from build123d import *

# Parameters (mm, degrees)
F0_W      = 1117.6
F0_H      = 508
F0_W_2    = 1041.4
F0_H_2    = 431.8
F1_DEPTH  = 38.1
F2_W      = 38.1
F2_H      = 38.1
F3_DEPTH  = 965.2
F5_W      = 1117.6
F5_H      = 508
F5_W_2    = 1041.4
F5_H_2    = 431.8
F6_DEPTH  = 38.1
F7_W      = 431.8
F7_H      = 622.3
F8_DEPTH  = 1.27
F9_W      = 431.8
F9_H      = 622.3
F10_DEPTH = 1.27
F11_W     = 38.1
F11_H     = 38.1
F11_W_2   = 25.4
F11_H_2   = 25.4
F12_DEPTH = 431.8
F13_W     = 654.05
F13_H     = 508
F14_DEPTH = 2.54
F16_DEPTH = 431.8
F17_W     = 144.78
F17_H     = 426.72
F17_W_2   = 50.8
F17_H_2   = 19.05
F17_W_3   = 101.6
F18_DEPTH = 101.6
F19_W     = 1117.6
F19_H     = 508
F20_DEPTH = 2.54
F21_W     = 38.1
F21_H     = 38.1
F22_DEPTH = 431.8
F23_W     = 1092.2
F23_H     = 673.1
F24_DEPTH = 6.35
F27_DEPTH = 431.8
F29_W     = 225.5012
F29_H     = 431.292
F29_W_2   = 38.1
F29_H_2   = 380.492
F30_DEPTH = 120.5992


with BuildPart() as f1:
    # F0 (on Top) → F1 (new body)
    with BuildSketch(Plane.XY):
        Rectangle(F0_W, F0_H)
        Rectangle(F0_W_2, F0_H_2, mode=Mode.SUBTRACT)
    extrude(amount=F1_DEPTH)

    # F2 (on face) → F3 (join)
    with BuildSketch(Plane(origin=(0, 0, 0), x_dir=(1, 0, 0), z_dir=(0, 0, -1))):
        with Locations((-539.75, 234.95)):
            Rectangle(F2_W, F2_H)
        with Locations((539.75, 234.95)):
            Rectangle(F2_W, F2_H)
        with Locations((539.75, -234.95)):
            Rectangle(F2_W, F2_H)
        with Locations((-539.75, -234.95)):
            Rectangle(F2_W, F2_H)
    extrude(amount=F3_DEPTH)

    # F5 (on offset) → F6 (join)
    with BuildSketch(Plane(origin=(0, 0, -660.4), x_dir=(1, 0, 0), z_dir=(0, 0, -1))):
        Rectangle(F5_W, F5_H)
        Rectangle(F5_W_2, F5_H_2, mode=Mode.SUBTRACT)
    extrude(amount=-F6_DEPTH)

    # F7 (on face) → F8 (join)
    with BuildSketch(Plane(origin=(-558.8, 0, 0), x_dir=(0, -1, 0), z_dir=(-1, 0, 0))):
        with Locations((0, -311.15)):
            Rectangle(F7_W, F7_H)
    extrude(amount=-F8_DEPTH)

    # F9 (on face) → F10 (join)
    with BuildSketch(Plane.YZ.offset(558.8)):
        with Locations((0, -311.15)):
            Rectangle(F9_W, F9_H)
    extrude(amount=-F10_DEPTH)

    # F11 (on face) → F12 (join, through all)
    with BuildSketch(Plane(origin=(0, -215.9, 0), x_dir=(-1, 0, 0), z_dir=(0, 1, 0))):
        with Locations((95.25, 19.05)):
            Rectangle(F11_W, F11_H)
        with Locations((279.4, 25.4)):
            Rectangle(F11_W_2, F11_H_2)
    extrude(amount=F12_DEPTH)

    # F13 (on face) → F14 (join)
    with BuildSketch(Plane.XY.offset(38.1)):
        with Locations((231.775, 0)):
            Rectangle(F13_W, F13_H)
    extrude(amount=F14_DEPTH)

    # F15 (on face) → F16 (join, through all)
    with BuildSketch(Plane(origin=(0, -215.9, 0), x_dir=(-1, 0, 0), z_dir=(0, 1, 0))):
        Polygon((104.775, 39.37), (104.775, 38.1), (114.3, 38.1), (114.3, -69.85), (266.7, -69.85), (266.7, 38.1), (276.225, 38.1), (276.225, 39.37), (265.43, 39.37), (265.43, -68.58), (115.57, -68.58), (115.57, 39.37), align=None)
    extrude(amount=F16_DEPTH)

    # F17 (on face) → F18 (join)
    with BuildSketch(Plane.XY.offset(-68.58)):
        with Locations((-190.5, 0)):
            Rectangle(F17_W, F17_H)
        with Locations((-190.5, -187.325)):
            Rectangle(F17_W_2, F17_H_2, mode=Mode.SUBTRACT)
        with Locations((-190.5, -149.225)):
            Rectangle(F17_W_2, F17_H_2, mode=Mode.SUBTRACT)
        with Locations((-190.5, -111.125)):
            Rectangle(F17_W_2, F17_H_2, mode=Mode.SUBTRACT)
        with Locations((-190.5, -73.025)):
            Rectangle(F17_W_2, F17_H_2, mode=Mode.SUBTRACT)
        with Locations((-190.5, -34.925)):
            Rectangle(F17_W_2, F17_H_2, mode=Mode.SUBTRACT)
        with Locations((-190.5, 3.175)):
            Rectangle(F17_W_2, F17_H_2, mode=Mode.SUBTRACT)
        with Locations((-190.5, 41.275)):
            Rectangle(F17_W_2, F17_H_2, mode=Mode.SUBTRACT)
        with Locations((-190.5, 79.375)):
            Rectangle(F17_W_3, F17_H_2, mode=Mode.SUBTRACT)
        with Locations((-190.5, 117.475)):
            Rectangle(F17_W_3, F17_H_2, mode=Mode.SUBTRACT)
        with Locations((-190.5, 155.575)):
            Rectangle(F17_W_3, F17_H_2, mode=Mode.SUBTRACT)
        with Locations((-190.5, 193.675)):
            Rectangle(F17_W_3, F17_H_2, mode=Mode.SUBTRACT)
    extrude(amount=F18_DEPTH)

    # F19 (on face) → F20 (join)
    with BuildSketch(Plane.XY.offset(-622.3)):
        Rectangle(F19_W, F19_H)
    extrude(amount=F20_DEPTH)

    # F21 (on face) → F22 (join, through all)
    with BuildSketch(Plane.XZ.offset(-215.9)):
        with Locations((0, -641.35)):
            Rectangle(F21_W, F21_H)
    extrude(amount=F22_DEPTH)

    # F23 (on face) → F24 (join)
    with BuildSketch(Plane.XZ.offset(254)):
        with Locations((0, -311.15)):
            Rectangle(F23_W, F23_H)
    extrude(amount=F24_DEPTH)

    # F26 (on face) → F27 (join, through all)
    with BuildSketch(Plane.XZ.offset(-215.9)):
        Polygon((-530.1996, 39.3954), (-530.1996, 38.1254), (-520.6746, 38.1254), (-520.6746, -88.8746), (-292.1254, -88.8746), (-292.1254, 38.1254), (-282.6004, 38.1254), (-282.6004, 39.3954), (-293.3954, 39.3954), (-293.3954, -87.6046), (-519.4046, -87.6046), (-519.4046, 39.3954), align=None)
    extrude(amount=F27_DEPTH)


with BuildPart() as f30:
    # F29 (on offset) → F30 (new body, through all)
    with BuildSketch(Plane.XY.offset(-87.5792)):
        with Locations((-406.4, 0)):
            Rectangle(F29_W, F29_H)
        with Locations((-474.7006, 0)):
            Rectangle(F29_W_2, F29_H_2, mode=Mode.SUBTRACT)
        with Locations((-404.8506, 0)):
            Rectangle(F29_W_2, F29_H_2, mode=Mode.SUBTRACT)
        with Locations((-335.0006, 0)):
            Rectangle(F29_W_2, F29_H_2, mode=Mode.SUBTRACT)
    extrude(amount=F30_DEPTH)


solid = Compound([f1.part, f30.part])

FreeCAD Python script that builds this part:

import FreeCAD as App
import Part
import Sketcher

V = App.Vector
Q = App.Units.Quantity


def add_polygon(sketch, points):
    """Adds a closed chain of lines whose ends are joined by coincident constraints."""
    first, n = sketch.GeometryCount, len(points)
    for a, b in zip(points, points[1:] + points[:1]):
        sketch.addGeometry(Part.LineSegment(App.Vector(*a, 0), App.Vector(*b, 0)), False)
    for i in range(n):
        sketch.addConstraint(Sketcher.Constraint("Coincident", first + i, 2, first + (i + 1) % n, 1))

doc = App.newDocument("Part")
body = doc.addObject("PartDesign::Body", "Body")

sketch1 = doc.addObject("Sketcher::SketchObject", "Sketch")
body.addObject(sketch1)
sketch1.AttachmentSupport = (doc.XY_Plane, [""])
sketch1.MapMode = "FlatFace"
add_polygon(sketch1, [(-559, 254), (-559, -254), (559, -254), (559, 254)])
add_polygon(sketch1, [(521, -216), (-521, -216), (-521, 216), (521, 216)])
sketch1.addConstraint([
    Sketcher.Constraint("Vertical", 0),
    Sketcher.Constraint("Horizontal", 1),
    Sketcher.Constraint("Vertical", 2),
    Sketcher.Constraint("Horizontal", 3),
    Sketcher.Constraint("Horizontal", 4),
    Sketcher.Constraint("Vertical", 5),
    Sketcher.Constraint("Horizontal", 6),
    Sketcher.Constraint("Vertical", 7),
    Sketcher.Constraint("Symmetric", 0, 2, 2, 2, -1, 1),
    Sketcher.Constraint("Symmetric", 4, 2, 6, 2, -1, 1),
    Sketcher.Constraint("DistanceX", 1, 1, 1, 2, Q("44 in")),
    Sketcher.Constraint("DistanceX", 4, 2, 4, 1, Q("41 in")),
    Sketcher.Constraint("DistanceY", 0, 2, 0, 1, Q("20 in")),
    Sketcher.Constraint("DistanceY", 5, 1, 5, 2, Q("17 in")),
])
pad1 = doc.addObject("PartDesign::Pad", "Pad")
body.addObject(pad1)
pad1.Profile = sketch1
pad1.Length = Q("1.5 in")

sketch2 = doc.addObject("Sketcher::SketchObject", "Sketch001")
body.addObject(sketch2)
sketch2.AttachmentSupport = (doc.XY_Plane, [""])
sketch2.MapMode = "FlatFace"
add_polygon(sketch2, [(-559, -254), (-559, -216), (-521, -216), (-521, -254)])
add_polygon(sketch2, [(521, -254), (521, -216), (559, -216), (559, -254)])
add_polygon(sketch2, [(521, 216), (521, 254), (559, 254), (559, 216)])
add_polygon(sketch2, [(-559, 216), (-559, 254), (-521, 254), (-521, 216)])
sketch2.addConstraint([
    Sketcher.Constraint("Vertical", 0),
    Sketcher.Constraint("Horizontal", 1),
    Sketcher.Constraint("Vertical", 2),
    Sketcher.Constraint("Horizontal", 3),
    Sketcher.Constraint("Vertical", 4),
    Sketcher.Constraint("Horizontal", 5),
    Sketcher.Constraint("Vertical", 6),
    Sketcher.Constraint("Horizontal", 7),
    Sketcher.Constraint("Vertical", 8),
    Sketcher.Constraint("Horizontal", 9),
    Sketcher.Constraint("Vertical", 10),
    Sketcher.Constraint("Horizontal", 11),
    Sketcher.Constraint("Vertical", 12),
    Sketcher.Constraint("Horizontal", 13),
    Sketcher.Constraint("Vertical", 14),
    Sketcher.Constraint("Horizontal", 15),
    Sketcher.Constraint("Symmetric", 2, 2, 8, 2, -1, 1),
    Sketcher.Constraint("Symmetric", 0, 2, 10, 2, -1, 1),
    Sketcher.Constraint("Symmetric", 6, 2, 12, 2, -1, 1),
    Sketcher.Constraint("Symmetric", 4, 2, 14, 2, -1, 1),
    Sketcher.Constraint("Symmetric", 1, 2, 4, 2, -2),
    Sketcher.Constraint("Symmetric", 3, 2, 6, 2, -2),
    Sketcher.Constraint("Equal", 15, 0),
    Sketcher.Constraint("DistanceX", 1, 1, 1, 2, Q("1.5 in")),
    Sketcher.Constraint("DistanceX", 0, 2, -1, 1, Q("22 in")),
    Sketcher.Constraint("DistanceY", 2, 2, -1, 1, Q("10 in")),
])
pad2 = doc.addObject("PartDesign::Pad", "Pad001")
body.addObject(pad2)
pad2.Profile = sketch2
pad2.Length = Q("38 in")
pad2.Reversed = True

sketch3 = doc.addObject("Sketcher::SketchObject", "Sketch002")
body.addObject(sketch3)
sketch3.AttachmentSupport = (doc.XY_Plane, [""])
sketch3.MapMode = "FlatFace"
sketch3.AttachmentOffset = App.Placement(V(0, 0, -26 * 25.4), App.Rotation())
add_polygon(sketch3, [(-559, -254), (-559, 254), (559, 254), (559, -254)])
add_polygon(sketch3, [(521, 216), (-521, 216), (-521, -216), (521, -216)])
sketch3.addConstraint([
    Sketcher.Constraint("Vertical", 0),
    Sketcher.Constraint("Horizontal", 1),
    Sketcher.Constraint("Vertical", 2),
    Sketcher.Constraint("Horizontal", 3),
    Sketcher.Constraint("Horizontal", 4),
    Sketcher.Constraint("Vertical", 5),
    Sketcher.Constraint("Horizontal", 6),
    Sketcher.Constraint("Vertical", 7),
    Sketcher.Constraint("Symmetric", 0, 2, 2, 2, -1, 1),
    Sketcher.Constraint("Symmetric", 4, 2, 6, 2, -1, 1),
    Sketcher.Constraint("DistanceX", 1, 1, 1, 2, Q("44 in")),
    Sketcher.Constraint("DistanceX", 4, 2, 4, 1, Q("41 in")),
    Sketcher.Constraint("DistanceY", 0, 1, 0, 2, Q("20 in")),
    Sketcher.Constraint("DistanceY", 5, 2, 5, 1, Q("17 in")),
])
pad3 = doc.addObject("PartDesign::Pad", "Pad002")
body.addObject(pad3)
pad3.Profile = sketch3
pad3.Length = Q("1.5 in")

sketch4 = doc.addObject("Sketcher::SketchObject", "Sketch003")
body.addObject(sketch4)
sketch4.AttachmentSupport = (doc.YZ_Plane, [""])
sketch4.MapMode = "FlatFace"
sketch4.AttachmentOffset = App.Placement(V(0, 0, -22 * 25.4), App.Rotation())
add_polygon(sketch4, [(216, 0), (216, -622), (-216, -622), (-216, 0)])
sketch4.addConstraint([
    Sketcher.Constraint("Vertical", 0),
    Sketcher.Constraint("Horizontal", 1),
    Sketcher.Constraint("Vertical", 2),
    Sketcher.Constraint("Horizontal", 3),
    Sketcher.Constraint("Symmetric", 2, 2, 3, 2, -1, 1),
    Sketcher.Constraint("DistanceX", 1, 2, 1, 1, Q("17 in")),
    Sketcher.Constraint("DistanceY", 0, 2, 0, 1, Q("24.5 in")),
])
pad4 = doc.addObject("PartDesign::Pad", "Pad003")
body.addObject(pad4)
pad4.Profile = sketch4
pad4.Length = Q("0.05 in")

sketch5 = doc.addObject("Sketcher::SketchObject", "Sketch004")
body.addObject(sketch5)
sketch5.AttachmentSupport = (doc.YZ_Plane, [""])
sketch5.MapMode = "FlatFace"
sketch5.AttachmentOffset = App.Placement(V(0, 0, 22 * 25.4), App.Rotation())
add_polygon(sketch5, [(-216, 0), (-216, -622), (216, -622), (216, 0)])
sketch5.addConstraint([
    Sketcher.Constraint("Vertical", 0),
    Sketcher.Constraint("Horizontal", 1),
    Sketcher.Constraint("Vertical", 2),
    Sketcher.Constraint("Horizontal", 3),
    Sketcher.Constraint("Symmetric", 2, 2, 3, 2, -1, 1),
    Sketcher.Constraint("DistanceX", 1, 1, 1, 2, Q("17 in")),
    Sketcher.Constraint("DistanceY", 0, 2, 0, 1, Q("24.5 in")),
])
pad5 = doc.addObject("PartDesign::Pad", "Pad004")
body.addObject(pad5)
pad5.Profile = sketch5
pad5.Length = Q("0.05 in")
pad5.Reversed = True

sketch6 = doc.addObject("Sketcher::SketchObject", "Sketch005")
body.addObject(sketch6)
sketch6.AttachmentSupport = (doc.XZ_Plane, [""])
sketch6.MapMode = "FlatFace"
sketch6.AttachmentOffset = App.Placement(V(0, 0, 8.5 * 25.4), App.Rotation())
add_polygon(sketch6, [(-76, 38), (-76, 0), (-114, 0), (-114, 38)])
add_polygon(sketch6, [(-267, 38), (-267, 13), (-292, 13), (-292, 38)])
sketch6.addConstraint([
    Sketcher.Constraint("Vertical", 0),
    Sketcher.Constraint("Horizontal", 1),
    Sketcher.Constraint("Vertical", 2),
    Sketcher.Constraint("Horizontal", 3),
    Sketcher.Constraint("Vertical", 4),
    Sketcher.Constraint("Horizontal", 5),
    Sketcher.Constraint("Vertical", 6),
    Sketcher.Constraint("Horizontal", 7),
    Sketcher.Constraint("PointOnObject", 0, 2, -1),
    Sketcher.Constraint("Horizontal", 3, 2, 6, 2),
    Sketcher.Constraint("Equal", 3, 0),
    Sketcher.Constraint("Equal", 7, 4),
    Sketcher.Constraint("DistanceX", 5, 2, 5, 1, Q("1 in")),
    Sketcher.Constraint("DistanceX", 1, 2, 1, 1, Q("1.5 in")),
    Sketcher.Constraint("DistanceX", 0, 2, -1, 1, Q("3 in")),
    Sketcher.Constraint("DistanceX", 4, 2, 1, 2, Q("6 in")),
])
pad6 = doc.addObject("PartDesign::Pad", "Pad005")
body.addObject(pad6)
pad6.Profile = sketch6
pad6.Type = "UpToLast"
pad6.Reversed = True

sketch7 = doc.addObject("Sketcher::SketchObject", "Sketch006")
body.addObject(sketch7)
sketch7.AttachmentSupport = (doc.XY_Plane, [""])
sketch7.MapMode = "FlatFace"
sketch7.AttachmentOffset = App.Placement(V(0, 0, 1.5 * 25.4), App.Rotation())
add_polygon(sketch7, [(-95, 254), (-95, -254), (559, -254), (559, 254)])
sketch7.addConstraint([
    Sketcher.Constraint("Vertical", 0),
    Sketcher.Constraint("Horizontal", 1),
    Sketcher.Constraint("Vertical", 2),
    Sketcher.Constraint("Horizontal", 3),
    Sketcher.Constraint("DistanceY", 0, 2, 0, 1, Q("20 in")),
    Sketcher.Constraint("DistanceY", 0, 2, -1, 1, Q("10 in")),
    Sketcher.Constraint("DistanceX", -1, 1, 1, 2, Q("22 in")),
    Sketcher.Constraint("DistanceX", 1, 1, 1, 2, Q("25.75 in")),
])
pad7 = doc.addObject("PartDesign::Pad", "Pad006")
body.addObject(pad7)
pad7.Profile = sketch7
pad7.Length = Q("0.1 in")

sketch8 = doc.addObject("Sketcher::SketchObject", "Sketch007")
body.addObject(sketch8)
sketch8.AttachmentSupport = (doc.XZ_Plane, [""])
sketch8.MapMode = "FlatFace"
sketch8.AttachmentOffset = App.Placement(V(0, 0, 8.5 * 25.4), App.Rotation())
add_polygon(sketch8, [(-104.8, 39.4), (-104.8, 38.1), (-114.3, 38.1), (-114.3, -69.8), (-266.7, -69.8), (-266.7, 38.1), (-276.2, 38.1), (-276.2, 39.4), (-265.4, 39.4), (-265.4, -68.6), (-115.6, -68.6), (-115.6, 39.4)])
sketch8.addConstraint([
    Sketcher.Constraint("Vertical", 0),
    Sketcher.Constraint("Horizontal", 1),
    Sketcher.Constraint("Vertical", 2),
    Sketcher.Constraint("Horizontal", 3),
    Sketcher.Constraint("Vertical", 4),
    Sketcher.Constraint("Horizontal", 5),
    Sketcher.Constraint("Vertical", 6),
    Sketcher.Constraint("Horizontal", 7),
    Sketcher.Constraint("Vertical", 8),
    Sketcher.Constraint("Horizontal", 9),
    Sketcher.Constraint("Vertical", 10),
    Sketcher.Constraint("Horizontal", 11),
    Sketcher.Constraint("Horizontal", 1, 2, 4, 2),
    Sketcher.Constraint("Horizontal", 7, 2, 10, 2),
    Sketcher.Constraint("Equal", 1, 5),
    Sketcher.Constraint("Equal", 7, 11),
    Sketcher.Constraint("Equal", 4, 8),
    Sketcher.Constraint("DistanceX", 3, 2, 3, 1, Q("6 in")),
    Sketcher.Constraint("DistanceX", 9, 1, 9, 2, Q("5.9 in")),
    Sketcher.Constraint("DistanceY", 0, 2, 0, 1, Q("0.05 in")),
    Sketcher.Constraint("DistanceY", 2, 2, 2, 1, Q("4.25 in")),
    Sketcher.Constraint("DistanceY", -1, 1, 0, 2, Q("1.5 in")),
    Sketcher.Constraint("DistanceX", 1, 2, -1, 1, Q("4.5 in")),
    Sketcher.Constraint("DistanceX", 1, 2, 1, 1, Q("0.375 in")),
])
pad8 = doc.addObject("PartDesign::Pad", "Pad007")
body.addObject(pad8)
pad8.Profile = sketch8
pad8.Length = Q("17 in")
pad8.Reversed = True

sketch9 = doc.addObject("Sketcher::SketchObject", "Sketch008")
body.addObject(sketch9)
sketch9.AttachmentSupport = (doc.XY_Plane, [""])
sketch9.MapMode = "FlatFace"
sketch9.AttachmentOffset = App.Placement(V(0, 0, -2.7 * 25.4), App.Rotation())
add_polygon(sketch9, [(-263, 213), (-263, -213), (-118, -213), (-118, 213)])
add_polygon(sketch9, [(-165, -197), (-216, -197), (-216, -178), (-165, -178)])
add_polygon(sketch9, [(-165, -159), (-216, -159), (-216, -140), (-165, -140)])
add_polygon(sketch9, [(-165, -121), (-216, -121), (-216, -102), (-165, -102)])
add_polygon(sketch9, [(-165, -83), (-216, -83), (-216, -64), (-165, -64)])
add_polygon(sketch9, [(-165, -44), (-216, -44), (-216, -25), (-165, -25)])
add_polygon(sketch9, [(-165, -6), (-216, -6), (-216, 13), (-165, 13)])
add_polygon(sketch9, [(-165, 32), (-216, 32), (-216, 51), (-165, 51)])
add_polygon(sketch9, [(-140, 70), (-241, 70), (-241, 89), (-140, 89)])
add_polygon(sketch9, [(-140, 108), (-241, 108), (-241, 127), (-140, 127)])
add_polygon(sketch9, [(-140, 146), (-241, 146), (-241, 165), (-140, 165)])
add_polygon(sketch9, [(-140, 184), (-241, 184), (-241, 203), (-140, 203)])
sketch9.addConstraint([
    Sketcher.Constraint("Vertical", 0),
    Sketcher.Constraint("Horizontal", 1),
    Sketcher.Constraint("Vertical", 2),
    Sketcher.Constraint("Horizontal", 3),
    Sketcher.Constraint("Horizontal", 4),
    Sketcher.Constraint("Vertical", 5),
    Sketcher.Constraint("Horizontal", 6),
    Sketcher.Constraint("Vertical", 7),
    Sketcher.Constraint("Horizontal", 8),
    Sketcher.Constraint("Vertical", 9),
    Sketcher.Constraint("Horizontal", 10),
    Sketcher.Constraint("Vertical", 11),
    Sketcher.Constraint("Horizontal", 12),
    Sketcher.Constraint("Vertical", 13),
    Sketcher.Constraint("Horizontal", 14),
    Sketcher.Constraint("Vertical", 15),
    Sketcher.Constraint("Horizontal", 16),
    Sketcher.Constraint("Vertical", 17),
    Sketcher.Constraint("Horizontal", 18),
    Sketcher.Constraint("Vertical", 19),
    Sketcher.Constraint("Horizontal", 20),
    Sketcher.Constraint("Vertical", 21),
    Sketcher.Constraint("Horizontal", 22),
    Sketcher.Constraint("Vertical", 23),
    Sketcher.Constraint("Horizontal", 24),
    Sketcher.Constraint("Vertical", 25),
    Sketcher.Constraint("Horizontal", 26),
    Sketcher.Constraint("Vertical", 27),
    Sketcher.Constraint("Horizontal", 28),
    Sketcher.Constraint("Vertical", 29),
    Sketcher.Constraint("Horizontal", 30),
    Sketcher.Constraint("Vertical", 31),
    Sketcher.Constraint("Horizontal", 32),
    Sketcher.Constraint("Vertical", 33),
    Sketcher.Constraint("Horizontal", 34),
    Sketcher.Constraint("Vertical", 35),
    Sketcher.Constraint("Horizontal", 36),
    Sketcher.Constraint("Vertical", 37),
    Sketcher.Constraint("Horizontal", 38),
    Sketcher.Constraint("Vertical", 39),
    Sketcher.Constraint("Horizontal", 40),
    Sketcher.Constraint("Vertical", 41),
    Sketcher.Constraint("Horizontal", 42),
    Sketcher.Constraint("Vertical", 43),
    Sketcher.Constraint("Horizontal", 44),
    Sketcher.Constraint("Vertical", 45),
    Sketcher.Constraint("Horizontal", 46),
    Sketcher.Constraint("Vertical", 47),
    Sketcher.Constraint("Vertical", 5, 2, 8, 2),
    Sketcher.Constraint("Vertical", 7, 2, 10, 2),
    Sketcher.Constraint("Vertical", 9, 2, 12, 2),
    Sketcher.Constraint("Vertical", 11, 2, 14, 2),
    Sketcher.Constraint("Vertical", 13, 2, 16, 2),
    Sketcher.Constraint("Vertical", 15, 2, 18, 2),
    Sketcher.Constraint("Vertical", 17, 2, 20, 2),
    Sketcher.Constraint("Vertical", 19, 2, 22, 2),
    Sketcher.Constraint("Vertical", 21, 2, 24, 2),
    Sketcher.Constraint("Vertical", 23, 2, 26, 2),
    Sketcher.Constraint("Vertical", 25, 2, 28, 2),
    Sketcher.Constraint("Vertical", 27, 2, 30, 2),
    Sketcher.Constraint("Vertical", 33, 2, 36, 2),
    Sketcher.Constraint("Vertical", 35, 2, 38, 2),
    Sketcher.Constraint("Vertical", 37, 2, 40, 2),
    Sketcher.Constraint("Vertical", 39, 2, 42, 2),
    Sketcher.Constraint("Vertical", 41, 2, 44, 2),
    Sketcher.Constraint("Vertical", 43, 2, 46, 2),
    Sketcher.Constraint("Equal", 7, 9),
    Sketcher.Constraint("Equal", 11, 13),
    Sketcher.Constraint("Equal", 15, 17),
    Sketcher.Constraint("Equal", 19, 21),
    Sketcher.Constraint("Equal", 23, 25),
    Sketcher.Constraint("Equal", 27, 29),
    Sketcher.Constraint("Equal", 31, 33),
    Sketcher.Constraint("Equal", 35, 37),
    Sketcher.Constraint("Equal", 39, 41),
    Sketcher.Constraint("Equal", 43, 45),
    Sketcher.Constraint("DistanceX", 4, 2, 4, 1, Q("2 in")),
    Sketcher.Constraint("DistanceX", 32, 2, 32, 1, Q("4 in")),
    Sketcher.Constraint("DistanceX", 1, 1, 1, 2, Q("5.7 in")),
    Sketcher.Constraint("DistanceY", 0, 2, 0, 1, Q("16.8 in")),
    Sketcher.Constraint("DistanceY", 5, 2, -1, 1, Q("7 in")),
    Sketcher.Constraint("DistanceY", 13, 2, -1, 1, Q("4 in")),
    Sketcher.Constraint("DistanceY", 21, 2, -1, 1, Q("1 in")),
    Sketcher.Constraint("DistanceY", -1, 1, 29, 2, Q("2 in")),
    Sketcher.Constraint("DistanceY", -1, 1, 37, 2, Q("5 in")),
    Sketcher.Constraint("DistanceY", -1, 1, 45, 2, Q("8 in")),
    Sketcher.Constraint("DistanceY", 9, 2, 17, 2, Q("3 in")),
    Sketcher.Constraint("DistanceY", 17, 2, 25, 2, Q("3 in")),
    Sketcher.Constraint("DistanceX", 32, 2, 29, 2, Q("1 in")),
    Sketcher.Constraint("DistanceY", 24, 2, 32, 2, Q("3 in")),
    Sketcher.Constraint("DistanceY", 32, 2, 40, 2, Q("3 in")),
    Sketcher.Constraint("DistanceY", 5, 1, 5, 2, Q("0.75 in")),
    Sketcher.Constraint("DistanceY", 0, 2, -1, 1, Q("8.4 in")),
    Sketcher.Constraint("DistanceX", 4, 2, -1, 1, Q("8.5 in")),
    Sketcher.Constraint("DistanceY", 9, 2, -1, 1, Q("5.5 in")),
    Sketcher.Constraint("DistanceX", 0, 2, -1, 1, Q("10.35 in")),
])
pad9 = doc.addObject("PartDesign::Pad", "Pad008")
body.addObject(pad9)
pad9.Profile = sketch9
pad9.Length = Q("4 in")

sketch10 = doc.addObject("Sketcher::SketchObject", "Sketch009")
body.addObject(sketch10)
sketch10.AttachmentSupport = (doc.XY_Plane, [""])
sketch10.MapMode = "FlatFace"
sketch10.AttachmentOffset = App.Placement(V(0, 0, -24.5 * 25.4), App.Rotation())
add_polygon(sketch10, [(-559, 254), (-559, -254), (559, -254), (559, 254)])
sketch10.addConstraint([
    Sketcher.Constraint("Vertical", 0),
    Sketcher.Constraint("Horizontal", 1),
    Sketcher.Constraint("Vertical", 2),
    Sketcher.Constraint("Horizontal", 3),
    Sketcher.Constraint("Symmetric", 0, 2, 2, 2, -1, 1),
    Sketcher.Constraint("DistanceX", 1, 1, 1, 2, Q("44 in")),
    Sketcher.Constraint("DistanceY", 0, 2, 0, 1, Q("20 in")),
])
pad10 = doc.addObject("PartDesign::Pad", "Pad009")
body.addObject(pad10)
pad10.Profile = sketch10
pad10.Length = Q("0.1 in")

sketch11 = doc.addObject("Sketcher::SketchObject", "Sketch010")
body.addObject(sketch11)
sketch11.AttachmentSupport = (doc.XZ_Plane, [""])
sketch11.MapMode = "FlatFace"
sketch11.AttachmentOffset = App.Placement(V(0, 0, -8.5 * 25.4), App.Rotation())
add_polygon(sketch11, [(-19, -622), (-19, -660), (19, -660), (19, -622)])
sketch11.addConstraint([
    Sketcher.Constraint("Vertical", 0),
    Sketcher.Constraint("Horizontal", 1),
    Sketcher.Constraint("Vertical", 2),
    Sketcher.Constraint("Horizontal", 3),
    Sketcher.Constraint("Equal", 3, 0),
    Sketcher.Constraint("DistanceX", 1, 1, 1, 2, Q("1.5 in")),
    Sketcher.Constraint("DistanceY", 0, 2, -1, 1, Q("26 in")),
    Sketcher.Constraint("DistanceX", 0, 2, -1, 1, Q("0.75 in")),
])
pad11 = doc.addObject("PartDesign::Pad", "Pad010")
body.addObject(pad11)
pad11.Profile = sketch11
pad11.Type = "UpToLast"

sketch12 = doc.addObject("Sketcher::SketchObject", "Sketch011")
body.addObject(sketch12)
sketch12.AttachmentSupport = (doc.XZ_Plane, [""])
sketch12.MapMode = "FlatFace"
sketch12.AttachmentOffset = App.Placement(V(0, 0, 10 * 25.4), App.Rotation())
add_polygon(sketch12, [(-546, 25), (-546, -648), (546, -648), (546, 25)])
sketch12.addConstraint([
    Sketcher.Constraint("Vertical", 0),
    Sketcher.Constraint("Horizontal", 1),
    Sketcher.Constraint("Vertical", 2),
    Sketcher.Constraint("Horizontal", 3),
    Sketcher.Constraint("DistanceX", 1, 1, 1, 2, Q("43 in")),
    Sketcher.Constraint("DistanceY", 0, 2, 0, 1, Q("26.5 in")),
    Sketcher.Constraint("DistanceY", -1, 1, 2, 2, Q("1 in")),
    Sketcher.Constraint("DistanceX", 0, 2, -1, 1, Q("21.5 in")),
])
pad12 = doc.addObject("PartDesign::Pad", "Pad011")
body.addObject(pad12)
pad12.Profile = sketch12
pad12.Length = Q("0.25 in")

sketch13 = doc.addObject("Sketcher::SketchObject", "Sketch012")
body.addObject(sketch13)
sketch13.AttachmentSupport = (doc.XZ_Plane, [""])
sketch13.MapMode = "FlatFace"
sketch13.AttachmentOffset = App.Placement(V(0, 0, -8.5 * 25.4), App.Rotation())
add_polygon(sketch13, [(-530.2, 39.4), (-530.2, 38.1), (-520.7, 38.1), (-520.7, -88.9), (-292.1, -88.9), (-292.1, 38.1), (-282.6, 38.1), (-282.6, 39.4), (-293.4, 39.4), (-293.4, -87.6), (-519.4, -87.6), (-519.4, 39.4)])
sketch13.addConstraint([
    Sketcher.Constraint("Vertical", 0),
    Sketcher.Constraint("Horizontal", 1),
    Sketcher.Constraint("Vertical", 2),
    Sketcher.Constraint("Horizontal", 3),
    Sketcher.Constraint("Vertical", 4),
    Sketcher.Constraint("Horizontal", 5),
    Sketcher.Constraint("Vertical", 6),
    Sketcher.Constraint("Horizontal", 7),
    Sketcher.Constraint("Vertical", 8),
    Sketcher.Constraint("Horizontal", 9),
    Sketcher.Constraint("Vertical", 10),
    Sketcher.Constraint("Horizontal", 11),
    Sketcher.Constraint("Horizontal", 1, 2, 4, 2),
    Sketcher.Constraint("Horizontal", 7, 2, 10, 2),
    Sketcher.Constraint("Equal", 1, 5),
    Sketcher.Constraint("Equal", 7, 11),
    Sketcher.Constraint("Equal", 4, 8),
    Sketcher.Constraint("DistanceY", 2, 2, 2, 1, Q("5 in")),
    Sketcher.Constraint("DistanceY", 0, 2, 0, 1, Q("0.05 in")),
    Sketcher.Constraint("DistanceX", 1, 1, 1, 2, Q("0.375 in")),
    Sketcher.Constraint("DistanceX", 3, 1, 3, 2, Q("8.998 in")),
    Sketcher.Constraint("DistanceX", 7, 2, 7, 1, Q("0.425 in")),
    Sketcher.Constraint("DistanceX", 0, 2, -1, 1, Q("20.874 in")),
    Sketcher.Constraint("DistanceY", -1, 1, 0, 2, Q("1.501 in")),
])
pad13 = doc.addObject("PartDesign::Pad", "Pad012")
body.addObject(pad13)
pad13.Profile = sketch13
pad13.Length = Q("17 in")
body2 = doc.addObject("PartDesign::Body", "Body001")

sketch14 = doc.addObject("Sketcher::SketchObject", "Sketch013")
body2.addObject(sketch14)
sketch14.AttachmentSupport = (doc.getObject("XY_Plane001"), [""])
sketch14.MapMode = "FlatFace"
sketch14.AttachmentOffset = App.Placement(V(0, 0, -3.448 * 25.4), App.Rotation())
add_polygon(sketch14, [(-519, 216), (-519, -216), (-294, -216), (-294, 216)])
add_polygon(sketch14, [(-456, -190), (-494, -190), (-494, 190), (-456, 190)])
add_polygon(sketch14, [(-386, -190), (-424, -190), (-424, 190), (-386, 190)])
add_polygon(sketch14, [(-316, -190), (-354, -190), (-354, 190), (-316, 190)])
sketch14.addConstraint([
    Sketcher.Constraint("Vertical", 0),
    Sketcher.Constraint("Horizontal", 1),
    Sketcher.Constraint("Vertical", 2),
    Sketcher.Constraint("Horizontal", 3),
    Sketcher.Constraint("Horizontal", 4),
    Sketcher.Constraint("Vertical", 5),
    Sketcher.Constraint("Horizontal", 6),
    Sketcher.Constraint("Vertical", 7),
    Sketcher.Constraint("Horizontal", 8),
    Sketcher.Constraint("Vertical", 9),
    Sketcher.Constraint("Horizontal", 10),
    Sketcher.Constraint("Vertical", 11),
    Sketcher.Constraint("Horizontal", 12),
    Sketcher.Constraint("Vertical", 13),
    Sketcher.Constraint("Horizontal", 14),
    Sketcher.Constraint("Vertical", 15),
    Sketcher.Constraint("Horizontal", 7, 2, 8, 2),
    Sketcher.Constraint("Horizontal", 6, 2, 9, 2),
    Sketcher.Constraint("Horizontal", 11, 2, 12, 2),
    Sketcher.Constraint("Horizontal", 10, 2, 13, 2),
    Sketcher.Constraint("Equal", 6, 8),
    Sketcher.Constraint("Equal", 10, 12),
    Sketcher.Constraint("DistanceX", 4, 2, 4, 1, Q("1.5 in")),
    Sketcher.Constraint("DistanceX", 0, 2, 4, 2, Q("1 in")),
    Sketcher.Constraint("DistanceY", 0, 2, 4, 2, Q("1 in")),
    Sketcher.Constraint("DistanceY", 5, 2, 3, 2, Q("1 in")),
    Sketcher.Constraint("DistanceX", 7, 2, 12, 2, Q("4 in")),
    Sketcher.Constraint("DistanceY", 0, 2, 0, 1, Q("16.98 in")),
    Sketcher.Constraint("DistanceX", 1, 1, 1, 2, Q("8.878 in")),
    Sketcher.Constraint("DistanceY", 0, 2, -1, 1, Q("8.49 in")),
    Sketcher.Constraint("DistanceX", 7, 2, 8, 2, Q("1.25 in")),
    Sketcher.Constraint("DistanceX", 0, 2, -1, 1, Q("20.439 in")),
])
pad14 = doc.addObject("PartDesign::Pad", "Pad013")
body2.addObject(pad14)
pad14.Profile = sketch14
pad14.Length = Q("4.748 in")

doc.recompute()
